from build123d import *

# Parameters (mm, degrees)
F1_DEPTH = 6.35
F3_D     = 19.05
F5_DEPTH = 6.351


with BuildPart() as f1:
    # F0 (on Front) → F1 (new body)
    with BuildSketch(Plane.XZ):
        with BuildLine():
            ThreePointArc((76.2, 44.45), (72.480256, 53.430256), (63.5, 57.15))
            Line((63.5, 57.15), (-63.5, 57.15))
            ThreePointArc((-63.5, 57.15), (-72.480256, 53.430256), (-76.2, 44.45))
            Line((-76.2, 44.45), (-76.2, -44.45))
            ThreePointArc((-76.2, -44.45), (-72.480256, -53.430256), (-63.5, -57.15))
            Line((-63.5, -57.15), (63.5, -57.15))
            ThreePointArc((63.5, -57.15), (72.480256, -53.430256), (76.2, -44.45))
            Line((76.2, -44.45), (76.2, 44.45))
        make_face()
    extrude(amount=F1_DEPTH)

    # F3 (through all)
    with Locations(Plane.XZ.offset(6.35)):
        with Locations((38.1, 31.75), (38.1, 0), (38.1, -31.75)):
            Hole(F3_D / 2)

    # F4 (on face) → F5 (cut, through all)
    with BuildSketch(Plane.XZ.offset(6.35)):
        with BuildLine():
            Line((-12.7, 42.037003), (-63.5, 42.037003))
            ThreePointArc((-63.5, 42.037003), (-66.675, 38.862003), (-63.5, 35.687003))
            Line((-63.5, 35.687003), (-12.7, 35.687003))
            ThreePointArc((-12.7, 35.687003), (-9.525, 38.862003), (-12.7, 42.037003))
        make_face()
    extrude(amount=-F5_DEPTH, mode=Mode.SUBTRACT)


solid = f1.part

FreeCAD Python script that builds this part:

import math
import FreeCAD as App
import Part
import Sketcher
Q = App.Units.Quantity

doc = App.newDocument("Part")
body = doc.addObject("PartDesign::Body", "Body")

# Sketch on XZ plane
sketch1 = doc.addObject("Sketcher::SketchObject", "Sketch")
body.addObject(sketch1)
sketch1.AttachmentSupport = (doc.XZ_Plane, [""])
sketch1.MapMode = "FlatFace"
sketch1.addGeometry(Part.ArcOfCircle(Part.Circle(App.Vector(63.5, 44.45, 0), App.Vector(0, 0, 1), 12.7), math.radians(0.000002), math.radians(89.999998)), False)
sketch1.addGeometry(Part.LineSegment(App.Vector(63.5, 57.15, 0), App.Vector(-63.5, 57.15, 0)), False)
sketch1.addGeometry(Part.ArcOfCircle(Part.Circle(App.Vector(-63.5, 44.45, 0), App.Vector(0, 0, 1), 12.7), math.radians(90.000002), math.radians(179.999998)), False)
sketch1.addGeometry(Part.LineSegment(App.Vector(-76.2, 44.45, 0), App.Vector(-76.2, -44.45, 0)), False)
sketch1.addGeometry(Part.ArcOfCircle(Part.Circle(App.Vector(-63.5, -44.45, 0), App.Vector(0, 0, 1), 12.7), math.radians(-179.999998), math.radians(-90.000002)), False)
sketch1.addGeometry(Part.LineSegment(App.Vector(-63.5, -57.15, 0), App.Vector(63.5, -57.15, 0)), False)
sketch1.addGeometry(Part.ArcOfCircle(Part.Circle(App.Vector(63.5, -44.45, 0), App.Vector(0, 0, 1), 12.7), math.radians(-89.999998), math.radians(-0.000002)), False)
sketch1.addGeometry(Part.LineSegment(App.Vector(76.2, -44.45, 0), App.Vector(76.2, 44.45, 0)), False)
sketch1.addConstraint(Sketcher.Constraint("Tangent", 0, 2, 1, 1))
sketch1.addConstraint(Sketcher.Constraint("Tangent", 1, 2, 2, 1))
sketch1.addConstraint(Sketcher.Constraint("Tangent", 2, 2, 3, 1))
sketch1.addConstraint(Sketcher.Constraint("Tangent", 3, 2, 4, 1))
sketch1.addConstraint(Sketcher.Constraint("Tangent", 4, 2, 5, 1))
sketch1.addConstraint(Sketcher.Constraint("Tangent", 5, 2, 6, 1))
sketch1.addConstraint(Sketcher.Constraint("Tangent", 6, 2, 7, 1))
sketch1.addConstraint(Sketcher.Constraint("Tangent", 7, 2, 0, 1))
sketch1.addConstraint(Sketcher.Constraint("Horizontal", 1))
sketch1.addConstraint(Sketcher.Constraint("Vertical", 3))
sketch1.addConstraint(Sketcher.Constraint("Horizontal", 5))
sketch1.addConstraint(Sketcher.Constraint("Vertical", 7))
sketch1.addConstraint(Sketcher.Constraint("Equal", 0, 2))
sketch1.addConstraint(Sketcher.Constraint("Equal", 2, 4))
sketch1.addConstraint(Sketcher.Constraint("Equal", 4, 6))
sketch1.addConstraint(Sketcher.Constraint("Symmetric", 0, 3, 4, 3, -1, 1))
sketch1.addConstraint(Sketcher.Constraint("Radius", 0, Q("0.5 in")))
sketch1.addConstraint(Sketcher.Constraint("DistanceX", 1, 2, 1, 1, Q("5 in")))
sketch1.addConstraint(Sketcher.Constraint("DistanceY", 3, 2, 3, 1, Q("3.5 in")))
pad1 = doc.addObject("PartDesign::Pad", "Pad")
body.addObject(pad1)
pad1.Profile = sketch1
pad1.Length = Q("0.25 in")

# Sketch on XZ plane
sketch2 = doc.addObject("Sketcher::SketchObject", "Sketch001")
body.addObject(sketch2)
sketch2.AttachmentSupport = (doc.XZ_Plane, [""])
sketch2.MapMode = "FlatFace"
sketch2.AttachmentOffset = App.Placement(App.Vector(0, 0, 0.25 * 25.4), App.Rotation())
sketch2.addGeometry(Part.Circle(App.Vector(38.1, 31.75, 0), App.Vector(0, 0, 1), 9.525), False)
sketch2.addGeometry(Part.Circle(App.Vector(38.1, 0, 0), App.Vector(0, 0, 1), 9.525), False)
sketch2.addGeometry(Part.Circle(App.Vector(38.1, -31.75, 0), App.Vector(0, 0, 1), 9.525), False)
sketch2.addConstraint(Sketcher.Constraint("Equal", 0, 1))
sketch2.addConstraint(Sketcher.Constraint("Equal", 1, 2))
sketch2.addConstraint(Sketcher.Constraint("Symmetric", 0, 3, 2, 3, -1))
sketch2.addConstraint(Sketcher.Constraint("PointOnObject", 1, 3, -1))
sketch2.addConstraint(Sketcher.Constraint("Vertical", 0, 3, 1, 3))
sketch2.addConstraint(Sketcher.Constraint("Diameter", 0, Q("0.75 in")))
sketch2.addConstraint(Sketcher.Constraint("DistanceX", -1, 1, 0, 3, Q("1.5 in")))
sketch2.addConstraint(Sketcher.Constraint("DistanceY", 2, 3, 0, 3, Q("2.5 in")))
doc.recompute()
hole = doc.addObject("PartDesign::Hole", "Hole")
body.addObject(hole)
hole.Profile = sketch2
hole.ThreadType = "None"
hole.Diameter = Q("0.75 in")
hole.DepthType = "ThroughAll"

# Sketch on XZ plane
sketch3 = doc.addObject("Sketcher::SketchObject", "Sketch002")
body.addObject(sketch3)
sketch3.AttachmentSupport = (doc.XZ_Plane, [""])
sketch3.MapMode = "FlatFace"
sketch3.AttachmentOffset = App.Placement(App.Vector(0, 0, 0.25 * 25.4), App.Rotation())
sketch3.addGeometry(Part.LineSegment(App.Vector(-12.7, 42.037003, 0), App.Vector(-63.5, 42.037003, 0)), False)
sketch3.addGeometry(Part.ArcOfCircle(Part.Circle(App.Vector(-63.5, 38.862003, 0), App.Vector(0, 0, 1), 3.175), math.radians(90), math.radians(270)), False)
sketch3.addGeometry(Part.LineSegment(App.Vector(-63.5, 35.687003, 0), App.Vector(-12.7, 35.687003, 0)), False)
sketch3.addGeometry(Part.ArcOfCircle(Part.Circle(App.Vector(-12.7, 38.862003, 0), App.Vector(0, 0, 1), 3.175), math.radians(-90), math.radians(90)), False)
sketch3.addConstraint(Sketcher.Constraint("Tangent", 0, 2, 1, 1))
sketch3.addConstraint(Sketcher.Constraint("Tangent", 1, 2, 2, 1))
sketch3.addConstraint(Sketcher.Constraint("Tangent", 2, 2, 3, 1))
sketch3.addConstraint(Sketcher.Constraint("Tangent", 3, 2, 0, 1))
sketch3.addConstraint(Sketcher.Constraint("Horizontal", 0))
sketch3.addConstraint(Sketcher.Constraint("Horizontal", 2))
sketch3.addConstraint(Sketcher.Constraint("DistanceX", 0, 2, 0, 1, Q("2 in")))
sketch3.addConstraint(Sketcher.Constraint("Radius", 1, Q("0.125 in")))
sketch3.addConstraint(Sketcher.Constraint("DistanceX", 1, 3, -1, 1, Q("2.5 in")))
sketch3.addConstraint(Sketcher.Constraint("DistanceY", -1, 1, 1, 3, Q("1.5300001 in")))
pocket1 = doc.addObject("PartDesign::Pocket", "Pocket")
body.addObject(pocket1)
pocket1.Profile = sketch3
pocket1.Type = "ThroughAll"

doc.recompute()
